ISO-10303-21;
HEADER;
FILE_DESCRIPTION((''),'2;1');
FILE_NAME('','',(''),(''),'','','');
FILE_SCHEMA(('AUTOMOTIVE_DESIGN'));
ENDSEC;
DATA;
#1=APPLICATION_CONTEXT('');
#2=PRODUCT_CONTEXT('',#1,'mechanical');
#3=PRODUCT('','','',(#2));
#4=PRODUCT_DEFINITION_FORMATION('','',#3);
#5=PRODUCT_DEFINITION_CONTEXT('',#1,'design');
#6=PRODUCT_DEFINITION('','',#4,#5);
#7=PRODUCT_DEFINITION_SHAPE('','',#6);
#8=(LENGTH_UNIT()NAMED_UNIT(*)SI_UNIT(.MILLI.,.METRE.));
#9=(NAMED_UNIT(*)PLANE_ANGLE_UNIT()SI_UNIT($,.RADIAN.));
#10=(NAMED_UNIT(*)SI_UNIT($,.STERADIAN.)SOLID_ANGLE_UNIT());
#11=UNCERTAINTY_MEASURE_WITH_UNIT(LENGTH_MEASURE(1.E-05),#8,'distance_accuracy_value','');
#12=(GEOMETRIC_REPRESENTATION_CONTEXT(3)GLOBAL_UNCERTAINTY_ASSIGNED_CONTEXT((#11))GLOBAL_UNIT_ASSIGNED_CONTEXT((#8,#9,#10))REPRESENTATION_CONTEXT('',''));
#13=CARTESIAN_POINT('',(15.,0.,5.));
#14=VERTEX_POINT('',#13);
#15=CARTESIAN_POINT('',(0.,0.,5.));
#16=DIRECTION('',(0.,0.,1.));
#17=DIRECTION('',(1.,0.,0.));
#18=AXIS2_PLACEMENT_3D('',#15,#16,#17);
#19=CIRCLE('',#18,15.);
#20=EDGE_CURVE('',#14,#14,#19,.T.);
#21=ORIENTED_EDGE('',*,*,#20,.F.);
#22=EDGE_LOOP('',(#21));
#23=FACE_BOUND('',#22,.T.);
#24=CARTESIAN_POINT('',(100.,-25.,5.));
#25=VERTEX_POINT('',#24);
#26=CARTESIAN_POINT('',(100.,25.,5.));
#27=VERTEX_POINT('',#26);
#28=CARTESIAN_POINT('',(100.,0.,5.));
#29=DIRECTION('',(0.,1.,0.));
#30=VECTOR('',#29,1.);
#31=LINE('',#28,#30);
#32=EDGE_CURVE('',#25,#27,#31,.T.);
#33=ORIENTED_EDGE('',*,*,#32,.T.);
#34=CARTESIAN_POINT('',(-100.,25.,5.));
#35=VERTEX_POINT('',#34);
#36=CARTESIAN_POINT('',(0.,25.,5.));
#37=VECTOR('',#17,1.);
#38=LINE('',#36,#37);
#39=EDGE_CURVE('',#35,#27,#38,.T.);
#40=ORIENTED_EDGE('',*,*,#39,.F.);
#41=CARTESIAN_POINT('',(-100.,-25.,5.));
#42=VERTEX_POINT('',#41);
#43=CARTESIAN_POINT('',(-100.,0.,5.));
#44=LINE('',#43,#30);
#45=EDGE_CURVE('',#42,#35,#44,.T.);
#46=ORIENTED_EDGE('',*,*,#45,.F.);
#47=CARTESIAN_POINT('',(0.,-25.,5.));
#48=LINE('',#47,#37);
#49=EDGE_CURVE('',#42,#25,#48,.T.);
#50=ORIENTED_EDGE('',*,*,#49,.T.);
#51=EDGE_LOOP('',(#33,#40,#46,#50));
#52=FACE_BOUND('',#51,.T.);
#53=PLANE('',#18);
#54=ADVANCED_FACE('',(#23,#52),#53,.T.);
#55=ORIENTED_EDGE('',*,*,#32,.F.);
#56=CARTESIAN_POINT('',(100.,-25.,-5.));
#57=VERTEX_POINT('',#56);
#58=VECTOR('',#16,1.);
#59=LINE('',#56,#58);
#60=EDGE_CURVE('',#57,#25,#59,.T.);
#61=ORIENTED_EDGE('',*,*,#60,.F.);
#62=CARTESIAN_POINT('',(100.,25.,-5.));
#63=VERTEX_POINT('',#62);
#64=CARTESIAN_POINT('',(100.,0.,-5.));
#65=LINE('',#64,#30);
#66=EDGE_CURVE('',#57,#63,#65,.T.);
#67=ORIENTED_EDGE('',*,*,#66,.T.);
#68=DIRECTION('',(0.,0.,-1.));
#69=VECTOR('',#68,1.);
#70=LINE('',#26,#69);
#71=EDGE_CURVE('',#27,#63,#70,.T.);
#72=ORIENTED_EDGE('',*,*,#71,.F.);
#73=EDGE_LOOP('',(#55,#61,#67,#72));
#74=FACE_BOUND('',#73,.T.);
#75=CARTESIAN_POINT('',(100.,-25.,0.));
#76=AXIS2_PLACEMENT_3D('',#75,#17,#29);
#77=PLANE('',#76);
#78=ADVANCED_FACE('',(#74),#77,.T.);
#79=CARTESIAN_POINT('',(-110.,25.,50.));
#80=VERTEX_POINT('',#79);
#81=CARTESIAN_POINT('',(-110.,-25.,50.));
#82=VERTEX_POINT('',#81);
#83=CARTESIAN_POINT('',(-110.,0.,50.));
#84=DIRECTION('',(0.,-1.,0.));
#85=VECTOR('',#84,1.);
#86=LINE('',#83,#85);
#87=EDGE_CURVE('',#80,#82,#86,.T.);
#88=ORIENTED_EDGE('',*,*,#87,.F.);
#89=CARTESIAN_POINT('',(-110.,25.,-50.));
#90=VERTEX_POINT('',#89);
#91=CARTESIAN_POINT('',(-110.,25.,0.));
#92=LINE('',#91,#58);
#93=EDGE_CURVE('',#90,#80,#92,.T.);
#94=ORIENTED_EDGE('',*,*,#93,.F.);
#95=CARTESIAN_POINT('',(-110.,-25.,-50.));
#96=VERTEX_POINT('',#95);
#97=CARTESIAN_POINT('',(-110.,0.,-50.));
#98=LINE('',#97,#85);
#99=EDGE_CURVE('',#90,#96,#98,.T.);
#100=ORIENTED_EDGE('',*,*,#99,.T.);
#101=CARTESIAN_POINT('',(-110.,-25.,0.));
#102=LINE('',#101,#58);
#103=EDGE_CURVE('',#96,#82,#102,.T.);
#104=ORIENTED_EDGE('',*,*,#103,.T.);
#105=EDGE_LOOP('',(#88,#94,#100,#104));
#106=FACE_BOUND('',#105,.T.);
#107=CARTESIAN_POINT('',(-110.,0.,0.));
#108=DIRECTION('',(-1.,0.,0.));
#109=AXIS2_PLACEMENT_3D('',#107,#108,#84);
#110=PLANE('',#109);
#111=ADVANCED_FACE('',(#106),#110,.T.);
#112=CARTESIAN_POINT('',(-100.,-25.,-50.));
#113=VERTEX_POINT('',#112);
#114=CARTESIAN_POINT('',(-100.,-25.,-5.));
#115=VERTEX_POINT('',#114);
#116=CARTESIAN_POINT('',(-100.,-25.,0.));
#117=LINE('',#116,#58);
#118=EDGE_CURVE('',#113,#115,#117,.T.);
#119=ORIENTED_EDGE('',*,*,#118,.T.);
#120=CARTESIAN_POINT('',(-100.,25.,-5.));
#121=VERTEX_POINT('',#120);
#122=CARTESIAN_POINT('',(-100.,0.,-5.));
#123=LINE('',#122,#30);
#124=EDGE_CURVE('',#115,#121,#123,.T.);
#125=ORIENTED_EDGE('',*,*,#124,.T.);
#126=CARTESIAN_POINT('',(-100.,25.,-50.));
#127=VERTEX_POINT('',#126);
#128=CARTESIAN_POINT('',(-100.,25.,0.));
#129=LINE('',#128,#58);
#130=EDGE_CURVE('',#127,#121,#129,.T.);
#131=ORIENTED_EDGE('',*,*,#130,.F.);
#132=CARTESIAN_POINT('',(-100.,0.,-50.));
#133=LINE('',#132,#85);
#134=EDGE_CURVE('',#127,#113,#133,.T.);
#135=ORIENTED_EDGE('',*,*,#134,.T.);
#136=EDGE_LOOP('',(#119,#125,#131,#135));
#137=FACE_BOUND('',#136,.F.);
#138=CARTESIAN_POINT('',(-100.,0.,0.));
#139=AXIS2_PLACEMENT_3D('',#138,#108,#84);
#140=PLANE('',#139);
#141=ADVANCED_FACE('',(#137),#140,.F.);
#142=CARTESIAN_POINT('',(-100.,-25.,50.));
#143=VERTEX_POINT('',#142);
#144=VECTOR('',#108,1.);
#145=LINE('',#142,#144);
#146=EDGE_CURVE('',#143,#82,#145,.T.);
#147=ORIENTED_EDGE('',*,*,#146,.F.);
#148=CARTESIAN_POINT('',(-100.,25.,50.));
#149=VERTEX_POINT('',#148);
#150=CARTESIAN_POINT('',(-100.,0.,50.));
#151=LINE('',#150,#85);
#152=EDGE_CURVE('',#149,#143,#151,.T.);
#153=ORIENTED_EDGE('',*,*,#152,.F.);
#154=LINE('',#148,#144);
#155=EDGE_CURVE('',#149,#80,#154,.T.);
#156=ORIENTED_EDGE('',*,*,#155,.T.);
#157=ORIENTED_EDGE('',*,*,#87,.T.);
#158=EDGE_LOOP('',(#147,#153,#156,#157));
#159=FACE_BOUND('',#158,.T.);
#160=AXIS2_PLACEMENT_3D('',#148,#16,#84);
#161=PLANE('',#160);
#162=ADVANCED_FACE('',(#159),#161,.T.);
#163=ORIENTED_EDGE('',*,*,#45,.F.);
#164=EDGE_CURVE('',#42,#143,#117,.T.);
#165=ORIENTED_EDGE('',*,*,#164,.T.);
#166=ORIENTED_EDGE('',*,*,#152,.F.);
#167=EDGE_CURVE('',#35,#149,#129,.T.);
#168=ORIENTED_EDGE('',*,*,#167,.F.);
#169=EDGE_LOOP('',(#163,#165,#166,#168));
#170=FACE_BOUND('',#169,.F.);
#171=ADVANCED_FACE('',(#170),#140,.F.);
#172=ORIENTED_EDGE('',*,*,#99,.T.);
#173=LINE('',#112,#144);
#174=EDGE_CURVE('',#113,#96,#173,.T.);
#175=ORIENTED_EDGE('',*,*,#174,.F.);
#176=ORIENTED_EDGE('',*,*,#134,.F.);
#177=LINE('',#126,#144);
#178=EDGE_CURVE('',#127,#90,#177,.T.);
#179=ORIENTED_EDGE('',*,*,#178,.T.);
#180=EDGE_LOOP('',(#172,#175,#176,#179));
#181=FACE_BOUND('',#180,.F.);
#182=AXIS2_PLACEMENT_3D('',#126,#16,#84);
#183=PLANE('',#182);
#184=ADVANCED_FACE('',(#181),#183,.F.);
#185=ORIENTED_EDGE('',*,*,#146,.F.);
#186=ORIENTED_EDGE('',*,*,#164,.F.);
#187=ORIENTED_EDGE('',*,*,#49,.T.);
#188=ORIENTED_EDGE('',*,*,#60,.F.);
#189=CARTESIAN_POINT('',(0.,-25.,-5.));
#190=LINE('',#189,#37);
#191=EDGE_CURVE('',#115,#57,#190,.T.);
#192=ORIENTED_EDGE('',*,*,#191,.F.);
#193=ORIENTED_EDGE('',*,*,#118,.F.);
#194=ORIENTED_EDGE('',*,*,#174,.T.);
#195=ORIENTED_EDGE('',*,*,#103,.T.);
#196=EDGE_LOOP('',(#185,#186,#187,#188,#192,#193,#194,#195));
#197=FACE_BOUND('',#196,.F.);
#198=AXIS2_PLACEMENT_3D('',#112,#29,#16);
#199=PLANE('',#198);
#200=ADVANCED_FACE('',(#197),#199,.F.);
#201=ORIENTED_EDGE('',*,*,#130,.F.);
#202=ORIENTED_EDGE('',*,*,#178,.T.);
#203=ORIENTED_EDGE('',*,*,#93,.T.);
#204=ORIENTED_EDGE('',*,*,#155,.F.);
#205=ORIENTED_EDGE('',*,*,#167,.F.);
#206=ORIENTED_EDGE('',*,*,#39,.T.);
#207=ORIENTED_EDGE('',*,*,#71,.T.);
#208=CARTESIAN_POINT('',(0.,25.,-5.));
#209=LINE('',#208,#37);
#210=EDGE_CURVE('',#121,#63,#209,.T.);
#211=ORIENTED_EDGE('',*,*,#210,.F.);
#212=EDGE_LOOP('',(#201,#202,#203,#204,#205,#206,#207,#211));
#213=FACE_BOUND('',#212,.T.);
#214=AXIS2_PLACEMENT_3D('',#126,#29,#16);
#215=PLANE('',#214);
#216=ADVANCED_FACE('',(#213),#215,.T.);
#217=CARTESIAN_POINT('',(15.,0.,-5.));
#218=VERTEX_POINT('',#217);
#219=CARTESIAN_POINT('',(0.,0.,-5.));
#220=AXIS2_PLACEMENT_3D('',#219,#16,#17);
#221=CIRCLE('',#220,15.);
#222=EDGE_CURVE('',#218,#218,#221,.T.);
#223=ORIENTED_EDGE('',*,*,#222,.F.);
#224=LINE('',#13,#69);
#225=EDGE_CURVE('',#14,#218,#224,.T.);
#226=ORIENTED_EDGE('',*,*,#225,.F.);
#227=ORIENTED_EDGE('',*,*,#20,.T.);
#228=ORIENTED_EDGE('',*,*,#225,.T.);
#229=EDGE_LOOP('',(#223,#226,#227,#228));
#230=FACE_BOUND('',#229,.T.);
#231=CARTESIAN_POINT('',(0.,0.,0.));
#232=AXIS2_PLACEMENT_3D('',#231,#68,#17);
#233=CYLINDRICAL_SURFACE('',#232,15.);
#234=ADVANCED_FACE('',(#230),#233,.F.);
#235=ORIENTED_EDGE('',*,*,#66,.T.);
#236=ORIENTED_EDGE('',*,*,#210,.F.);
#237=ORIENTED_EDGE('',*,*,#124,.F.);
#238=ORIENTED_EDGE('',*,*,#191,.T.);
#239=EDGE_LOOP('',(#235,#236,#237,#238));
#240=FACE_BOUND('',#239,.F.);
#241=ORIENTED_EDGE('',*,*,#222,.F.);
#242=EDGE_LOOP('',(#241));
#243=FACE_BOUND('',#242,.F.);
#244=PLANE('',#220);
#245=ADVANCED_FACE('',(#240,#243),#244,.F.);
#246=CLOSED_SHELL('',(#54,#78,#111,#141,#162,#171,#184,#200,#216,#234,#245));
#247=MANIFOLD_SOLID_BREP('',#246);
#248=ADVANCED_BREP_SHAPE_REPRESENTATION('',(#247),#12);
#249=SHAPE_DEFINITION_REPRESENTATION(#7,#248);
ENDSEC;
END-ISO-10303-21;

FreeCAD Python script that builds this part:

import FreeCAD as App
import Part
import Sketcher
from FreeCAD import Vector
Q = App.Units.Quantity

doc = App.newDocument("Part")
params = doc.addObject("Spreadsheet::Sheet", "Params")
for row, (alias, value) in enumerate([
    ("sketch1_diameter", "30 mm"),
    ("sketch1_width", "200 mm"),
    ("sketch1_height", "50 mm"),
    ("pad1_length", "10 mm"),
    ("sketch2_width", "50 mm"),
    ("sketch2_height", "100 mm"),
    ("pad2_length", "10 mm"),
], start=1):
    params.set(f"A{row}", alias)
    params.set(f"B{row}", "=" + value)
    params.setAlias(f"B{row}", alias)

body = doc.addObject("PartDesign::Body", "Body")

sketch1 = body.newObject("Sketcher::SketchObject", "Sketch")
sketch1.AttachmentSupport = (doc.getObject("XY_Plane"), [""])
sketch1.MapMode = "FlatFace"
sketch1.addGeometry([
    Part.LineSegment(Vector(-100, 25, 0), Vector(-100, -25, 0)),
    Part.LineSegment(Vector(-100, -25, 0), Vector(100, -25, 0)),
    Part.LineSegment(Vector(100, -25, 0), Vector(100, 25, 0)),
    Part.LineSegment(Vector(100, 25, 0), Vector(-100, 25, 0)),
    Part.Circle(Vector(0, 0, 0), Vector(0, 0, 1), 15),
], False)
sketch1.addConstraint([
    Sketcher.Constraint("Coincident", 0, 2, 1, 1),
    Sketcher.Constraint("Coincident", 1, 2, 2, 1),
    Sketcher.Constraint("Coincident", 2, 2, 3, 1),
    Sketcher.Constraint("Coincident", 3, 2, 0, 1),
    Sketcher.Constraint("Vertical", 0),
    Sketcher.Constraint("Horizontal", 1),
    Sketcher.Constraint("Vertical", 2),
    Sketcher.Constraint("Horizontal", 3),
    Sketcher.Constraint("Coincident", 4, 3, -1, 1),
    Sketcher.Constraint("Symmetric", 0, 2, 2, 2, -1, 1),
    Sketcher.Constraint("Diameter", 4, Q("30 mm")),
    Sketcher.Constraint("DistanceX", 1, 1, 1, 2, Q("200 mm")),
    Sketcher.Constraint("DistanceY", 0, 2, 0, 1, Q("50 mm")),
])
sketch1.setExpression("Constraints[10]", "Params.sketch1_diameter")
sketch1.setExpression("Constraints[11]", "Params.sketch1_width")
sketch1.setExpression("Constraints[12]", "Params.sketch1_height")
pad1 = body.newObject("PartDesign::Pad", "Pad")
pad1.Profile = sketch1
pad1.setExpression("Length", "Params.pad1_length")
pad1.Midplane = True

sketch2 = body.newObject("Sketcher::SketchObject", "Sketch001")
sketch2.AttachmentSupport = (doc.getObject("YZ_Plane"), [""])
sketch2.MapMode = "FlatFace"
sketch2.AttachmentOffset = App.Placement(Vector(0, 0, -100), App.Rotation())
sketch2.addGeometry([
    Part.LineSegment(Vector(25, 50, 0), Vector(25, -50, 0)),
    Part.LineSegment(Vector(25, -50, 0), Vector(-25, -50, 0)),
    Part.LineSegment(Vector(-25, -50, 0), Vector(-25, 50, 0)),
    Part.LineSegment(Vector(-25, 50, 0), Vector(25, 50, 0)),
], False)
sketch2.addConstraint([
    Sketcher.Constraint("Coincident", 0, 2, 1, 1),
    Sketcher.Constraint("Coincident", 1, 2, 2, 1),
    Sketcher.Constraint("Coincident", 2, 2, 3, 1),
    Sketcher.Constraint("Coincident", 3, 2, 0, 1),
    Sketcher.Constraint("Vertical", 0),
    Sketcher.Constraint("Horizontal", 1),
    Sketcher.Constraint("Vertical", 2),
    Sketcher.Constraint("Horizontal", 3),
    Sketcher.Constraint("Symmetric", 0, 2, 2, 2, -1, 1),
    Sketcher.Constraint("DistanceX", 1, 2, 1, 1, Q("50 mm")),
    Sketcher.Constraint("DistanceY", 0, 2, 0, 1, Q("100 mm")),
])
sketch2.setExpression("Constraints[9]", "Params.sketch2_width")
sketch2.setExpression("Constraints[10]", "Params.sketch2_height")
pad2 = body.newObject("PartDesign::Pad", "Pad001")
pad2.Profile = sketch2
pad2.setExpression("Length", "Params.pad2_length")
pad2.Reversed = True

doc.recompute()
